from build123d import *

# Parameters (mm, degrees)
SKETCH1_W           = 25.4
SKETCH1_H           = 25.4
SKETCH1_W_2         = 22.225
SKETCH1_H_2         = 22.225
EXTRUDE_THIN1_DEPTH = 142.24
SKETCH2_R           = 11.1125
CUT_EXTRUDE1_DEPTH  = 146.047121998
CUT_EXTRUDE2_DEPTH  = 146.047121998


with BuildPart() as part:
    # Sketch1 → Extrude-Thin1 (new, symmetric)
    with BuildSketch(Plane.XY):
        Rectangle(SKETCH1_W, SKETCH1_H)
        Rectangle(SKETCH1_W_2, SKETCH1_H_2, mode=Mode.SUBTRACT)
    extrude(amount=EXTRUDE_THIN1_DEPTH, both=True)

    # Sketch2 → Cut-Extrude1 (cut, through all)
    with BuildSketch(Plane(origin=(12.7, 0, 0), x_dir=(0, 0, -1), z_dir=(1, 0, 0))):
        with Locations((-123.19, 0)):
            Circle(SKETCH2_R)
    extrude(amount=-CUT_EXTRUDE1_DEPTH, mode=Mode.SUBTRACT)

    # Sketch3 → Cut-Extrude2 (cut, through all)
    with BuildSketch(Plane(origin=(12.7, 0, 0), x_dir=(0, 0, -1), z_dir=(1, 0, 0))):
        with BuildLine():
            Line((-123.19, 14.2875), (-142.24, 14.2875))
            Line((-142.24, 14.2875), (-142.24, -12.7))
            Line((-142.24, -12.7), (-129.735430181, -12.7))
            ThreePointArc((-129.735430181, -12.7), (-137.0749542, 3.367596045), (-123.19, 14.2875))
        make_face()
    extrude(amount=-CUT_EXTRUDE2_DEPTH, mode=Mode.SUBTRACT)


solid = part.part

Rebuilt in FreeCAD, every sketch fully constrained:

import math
import FreeCAD as App
import Part
import Sketcher
Q = App.Units.Quantity

doc = App.newDocument("Part")
body = doc.addObject("PartDesign::Body", "Body")

# Sketch on XY plane
sketch1 = body.newObject("Sketcher::SketchObject", "Sketch")
sketch1.AttachmentSupport = (doc.getObject("XY_Plane"), [""])
sketch1.MapMode = "FlatFace"
sketch1.addGeometry(Part.LineSegment(App.Vector(-13, 13, 0), App.Vector(-13, -13, 0)), False)
sketch1.addGeometry(Part.LineSegment(App.Vector(-13, -13, 0), App.Vector(13, -13, 0)), False)
sketch1.addGeometry(Part.LineSegment(App.Vector(13, -13, 0), App.Vector(13, 13, 0)), False)
sketch1.addGeometry(Part.LineSegment(App.Vector(13, 13, 0), App.Vector(-13, 13, 0)), False)
sketch1.addGeometry(Part.LineSegment(App.Vector(11, -11, 0), App.Vector(-11, -11, 0)), False)
sketch1.addGeometry(Part.LineSegment(App.Vector(-11, -11, 0), App.Vector(-11, 11, 0)), False)
sketch1.addGeometry(Part.LineSegment(App.Vector(-11, 11, 0), App.Vector(11, 11, 0)), False)
sketch1.addGeometry(Part.LineSegment(App.Vector(11, 11, 0), App.Vector(11, -11, 0)), False)
sketch1.addConstraint(Sketcher.Constraint("Coincident", 0, 2, 1, 1))
sketch1.addConstraint(Sketcher.Constraint("Coincident", 1, 2, 2, 1))
sketch1.addConstraint(Sketcher.Constraint("Coincident", 2, 2, 3, 1))
sketch1.addConstraint(Sketcher.Constraint("Coincident", 3, 2, 0, 1))
sketch1.addConstraint(Sketcher.Constraint("Coincident", 4, 2, 5, 1))
sketch1.addConstraint(Sketcher.Constraint("Coincident", 5, 2, 6, 1))
sketch1.addConstraint(Sketcher.Constraint("Coincident", 6, 2, 7, 1))
sketch1.addConstraint(Sketcher.Constraint("Coincident", 7, 2, 4, 1))
sketch1.addConstraint(Sketcher.Constraint("Vertical", 0))
sketch1.addConstraint(Sketcher.Constraint("Horizontal", 1))
sketch1.addConstraint(Sketcher.Constraint("Vertical", 2))
sketch1.addConstraint(Sketcher.Constraint("Horizontal", 3))
sketch1.addConstraint(Sketcher.Constraint("Horizontal", 4))
sketch1.addConstraint(Sketcher.Constraint("Vertical", 5))
sketch1.addConstraint(Sketcher.Constraint("Horizontal", 6))
sketch1.addConstraint(Sketcher.Constraint("Vertical", 7))
sketch1.addConstraint(Sketcher.Constraint("Symmetric", 0, 2, 2, 2, -1, 1))
sketch1.addConstraint(Sketcher.Constraint("Symmetric", 4, 2, 6, 2, -1, 1))
sketch1.addConstraint(Sketcher.Constraint("Equal", 3, 0))
sketch1.addConstraint(Sketcher.Constraint("Equal", 6, 5))
sketch1.addConstraint(Sketcher.Constraint("DistanceX", 1, 1, 1, 2, Q("1 in")))
sketch1.addConstraint(Sketcher.Constraint("DistanceX", 4, 2, 4, 1, Q("0.875 in")))
pad1 = body.newObject("PartDesign::Pad", "Pad")
pad1.Profile = sketch1
pad1.Length = Q("11.2 in")
pad1.Midplane = True

# Sketch on YZ plane
sketch2 = body.newObject("Sketcher::SketchObject", "Sketch001")
sketch2.AttachmentSupport = (doc.getObject("YZ_Plane"), [""])
sketch2.MapMode = "FlatFace"
sketch2.AttachmentOffset = App.Placement(App.Vector(0, 0, 0.5 * 25.4), App.Rotation())
sketch2.addGeometry(Part.Circle(App.Vector(0, 123, 0), App.Vector(0, 0, 1), 11), False)
sketch2.addConstraint(Sketcher.Constraint("PointOnObject", 0, 3, -2))
sketch2.addConstraint(Sketcher.Constraint("Diameter", 0, Q("0.875 in")))
sketch2.addConstraint(Sketcher.Constraint("DistanceY", -1, 1, 0, 3, Q("4.85 in")))
pocket1 = body.newObject("PartDesign::Pocket", "Pocket")
pocket1.Profile = sketch2
pocket1.Type = "ThroughAll"

# Sketch on YZ plane
sketch3 = body.newObject("Sketcher::SketchObject", "Sketch002")
sketch3.AttachmentSupport = (doc.getObject("YZ_Plane"), [""])
sketch3.MapMode = "FlatFace"
sketch3.AttachmentOffset = App.Placement(App.Vector(0, 0, 0.5 * 25.4), App.Rotation())
sketch3.addGeometry(Part.LineSegment(App.Vector(14, 123, 0), App.Vector(14, 142, 0)), False)
sketch3.addGeometry(Part.LineSegment(App.Vector(14, 142, 0), App.Vector(-13, 142, 0)), False)
sketch3.addGeometry(Part.LineSegment(App.Vector(-13, 142, 0), App.Vector(-13, 130, 0)), False)
sketch3.addGeometry(Part.ArcOfCircle(Part.Circle(App.Vector(0, 123, 0), App.Vector(0, 0, 1), 14), math.radians(0), math.radians(153)), False)
sketch3.addConstraint(Sketcher.Constraint("Coincident", 0, 2, 1, 1))
sketch3.addConstraint(Sketcher.Constraint("Coincident", 1, 2, 2, 1))
sketch3.addConstraint(Sketcher.Constraint("Coincident", 2, 2, 3, 2))
sketch3.addConstraint(Sketcher.Constraint("Tangent", 3, 1, 0, 1))
sketch3.addConstraint(Sketcher.Constraint("Vertical", 0))
sketch3.addConstraint(Sketcher.Constraint("Horizontal", 1))
sketch3.addConstraint(Sketcher.Constraint("Vertical", 2))
sketch3.addConstraint(Sketcher.Constraint("PointOnObject", 3, 3, -2))
sketch3.addConstraint(Sketcher.Constraint("Radius", 3, Q("0.5625 in")))
sketch3.addConstraint(Sketcher.Constraint("DistanceY", 0, 1, 0, 2, Q("0.75 in")))
sketch3.addConstraint(Sketcher.Constraint("DistanceY", -1, 1, 0, 2, Q("5.6 in")))
sketch3.addConstraint(Sketcher.Constraint("DistanceX", 1, 2, -1, 1, Q("0.5 in")))
pocket2 = body.newObject("PartDesign::Pocket", "Pocket001")
pocket2.Profile = sketch3
pocket2.Type = "ThroughAll"

doc.recompute()
